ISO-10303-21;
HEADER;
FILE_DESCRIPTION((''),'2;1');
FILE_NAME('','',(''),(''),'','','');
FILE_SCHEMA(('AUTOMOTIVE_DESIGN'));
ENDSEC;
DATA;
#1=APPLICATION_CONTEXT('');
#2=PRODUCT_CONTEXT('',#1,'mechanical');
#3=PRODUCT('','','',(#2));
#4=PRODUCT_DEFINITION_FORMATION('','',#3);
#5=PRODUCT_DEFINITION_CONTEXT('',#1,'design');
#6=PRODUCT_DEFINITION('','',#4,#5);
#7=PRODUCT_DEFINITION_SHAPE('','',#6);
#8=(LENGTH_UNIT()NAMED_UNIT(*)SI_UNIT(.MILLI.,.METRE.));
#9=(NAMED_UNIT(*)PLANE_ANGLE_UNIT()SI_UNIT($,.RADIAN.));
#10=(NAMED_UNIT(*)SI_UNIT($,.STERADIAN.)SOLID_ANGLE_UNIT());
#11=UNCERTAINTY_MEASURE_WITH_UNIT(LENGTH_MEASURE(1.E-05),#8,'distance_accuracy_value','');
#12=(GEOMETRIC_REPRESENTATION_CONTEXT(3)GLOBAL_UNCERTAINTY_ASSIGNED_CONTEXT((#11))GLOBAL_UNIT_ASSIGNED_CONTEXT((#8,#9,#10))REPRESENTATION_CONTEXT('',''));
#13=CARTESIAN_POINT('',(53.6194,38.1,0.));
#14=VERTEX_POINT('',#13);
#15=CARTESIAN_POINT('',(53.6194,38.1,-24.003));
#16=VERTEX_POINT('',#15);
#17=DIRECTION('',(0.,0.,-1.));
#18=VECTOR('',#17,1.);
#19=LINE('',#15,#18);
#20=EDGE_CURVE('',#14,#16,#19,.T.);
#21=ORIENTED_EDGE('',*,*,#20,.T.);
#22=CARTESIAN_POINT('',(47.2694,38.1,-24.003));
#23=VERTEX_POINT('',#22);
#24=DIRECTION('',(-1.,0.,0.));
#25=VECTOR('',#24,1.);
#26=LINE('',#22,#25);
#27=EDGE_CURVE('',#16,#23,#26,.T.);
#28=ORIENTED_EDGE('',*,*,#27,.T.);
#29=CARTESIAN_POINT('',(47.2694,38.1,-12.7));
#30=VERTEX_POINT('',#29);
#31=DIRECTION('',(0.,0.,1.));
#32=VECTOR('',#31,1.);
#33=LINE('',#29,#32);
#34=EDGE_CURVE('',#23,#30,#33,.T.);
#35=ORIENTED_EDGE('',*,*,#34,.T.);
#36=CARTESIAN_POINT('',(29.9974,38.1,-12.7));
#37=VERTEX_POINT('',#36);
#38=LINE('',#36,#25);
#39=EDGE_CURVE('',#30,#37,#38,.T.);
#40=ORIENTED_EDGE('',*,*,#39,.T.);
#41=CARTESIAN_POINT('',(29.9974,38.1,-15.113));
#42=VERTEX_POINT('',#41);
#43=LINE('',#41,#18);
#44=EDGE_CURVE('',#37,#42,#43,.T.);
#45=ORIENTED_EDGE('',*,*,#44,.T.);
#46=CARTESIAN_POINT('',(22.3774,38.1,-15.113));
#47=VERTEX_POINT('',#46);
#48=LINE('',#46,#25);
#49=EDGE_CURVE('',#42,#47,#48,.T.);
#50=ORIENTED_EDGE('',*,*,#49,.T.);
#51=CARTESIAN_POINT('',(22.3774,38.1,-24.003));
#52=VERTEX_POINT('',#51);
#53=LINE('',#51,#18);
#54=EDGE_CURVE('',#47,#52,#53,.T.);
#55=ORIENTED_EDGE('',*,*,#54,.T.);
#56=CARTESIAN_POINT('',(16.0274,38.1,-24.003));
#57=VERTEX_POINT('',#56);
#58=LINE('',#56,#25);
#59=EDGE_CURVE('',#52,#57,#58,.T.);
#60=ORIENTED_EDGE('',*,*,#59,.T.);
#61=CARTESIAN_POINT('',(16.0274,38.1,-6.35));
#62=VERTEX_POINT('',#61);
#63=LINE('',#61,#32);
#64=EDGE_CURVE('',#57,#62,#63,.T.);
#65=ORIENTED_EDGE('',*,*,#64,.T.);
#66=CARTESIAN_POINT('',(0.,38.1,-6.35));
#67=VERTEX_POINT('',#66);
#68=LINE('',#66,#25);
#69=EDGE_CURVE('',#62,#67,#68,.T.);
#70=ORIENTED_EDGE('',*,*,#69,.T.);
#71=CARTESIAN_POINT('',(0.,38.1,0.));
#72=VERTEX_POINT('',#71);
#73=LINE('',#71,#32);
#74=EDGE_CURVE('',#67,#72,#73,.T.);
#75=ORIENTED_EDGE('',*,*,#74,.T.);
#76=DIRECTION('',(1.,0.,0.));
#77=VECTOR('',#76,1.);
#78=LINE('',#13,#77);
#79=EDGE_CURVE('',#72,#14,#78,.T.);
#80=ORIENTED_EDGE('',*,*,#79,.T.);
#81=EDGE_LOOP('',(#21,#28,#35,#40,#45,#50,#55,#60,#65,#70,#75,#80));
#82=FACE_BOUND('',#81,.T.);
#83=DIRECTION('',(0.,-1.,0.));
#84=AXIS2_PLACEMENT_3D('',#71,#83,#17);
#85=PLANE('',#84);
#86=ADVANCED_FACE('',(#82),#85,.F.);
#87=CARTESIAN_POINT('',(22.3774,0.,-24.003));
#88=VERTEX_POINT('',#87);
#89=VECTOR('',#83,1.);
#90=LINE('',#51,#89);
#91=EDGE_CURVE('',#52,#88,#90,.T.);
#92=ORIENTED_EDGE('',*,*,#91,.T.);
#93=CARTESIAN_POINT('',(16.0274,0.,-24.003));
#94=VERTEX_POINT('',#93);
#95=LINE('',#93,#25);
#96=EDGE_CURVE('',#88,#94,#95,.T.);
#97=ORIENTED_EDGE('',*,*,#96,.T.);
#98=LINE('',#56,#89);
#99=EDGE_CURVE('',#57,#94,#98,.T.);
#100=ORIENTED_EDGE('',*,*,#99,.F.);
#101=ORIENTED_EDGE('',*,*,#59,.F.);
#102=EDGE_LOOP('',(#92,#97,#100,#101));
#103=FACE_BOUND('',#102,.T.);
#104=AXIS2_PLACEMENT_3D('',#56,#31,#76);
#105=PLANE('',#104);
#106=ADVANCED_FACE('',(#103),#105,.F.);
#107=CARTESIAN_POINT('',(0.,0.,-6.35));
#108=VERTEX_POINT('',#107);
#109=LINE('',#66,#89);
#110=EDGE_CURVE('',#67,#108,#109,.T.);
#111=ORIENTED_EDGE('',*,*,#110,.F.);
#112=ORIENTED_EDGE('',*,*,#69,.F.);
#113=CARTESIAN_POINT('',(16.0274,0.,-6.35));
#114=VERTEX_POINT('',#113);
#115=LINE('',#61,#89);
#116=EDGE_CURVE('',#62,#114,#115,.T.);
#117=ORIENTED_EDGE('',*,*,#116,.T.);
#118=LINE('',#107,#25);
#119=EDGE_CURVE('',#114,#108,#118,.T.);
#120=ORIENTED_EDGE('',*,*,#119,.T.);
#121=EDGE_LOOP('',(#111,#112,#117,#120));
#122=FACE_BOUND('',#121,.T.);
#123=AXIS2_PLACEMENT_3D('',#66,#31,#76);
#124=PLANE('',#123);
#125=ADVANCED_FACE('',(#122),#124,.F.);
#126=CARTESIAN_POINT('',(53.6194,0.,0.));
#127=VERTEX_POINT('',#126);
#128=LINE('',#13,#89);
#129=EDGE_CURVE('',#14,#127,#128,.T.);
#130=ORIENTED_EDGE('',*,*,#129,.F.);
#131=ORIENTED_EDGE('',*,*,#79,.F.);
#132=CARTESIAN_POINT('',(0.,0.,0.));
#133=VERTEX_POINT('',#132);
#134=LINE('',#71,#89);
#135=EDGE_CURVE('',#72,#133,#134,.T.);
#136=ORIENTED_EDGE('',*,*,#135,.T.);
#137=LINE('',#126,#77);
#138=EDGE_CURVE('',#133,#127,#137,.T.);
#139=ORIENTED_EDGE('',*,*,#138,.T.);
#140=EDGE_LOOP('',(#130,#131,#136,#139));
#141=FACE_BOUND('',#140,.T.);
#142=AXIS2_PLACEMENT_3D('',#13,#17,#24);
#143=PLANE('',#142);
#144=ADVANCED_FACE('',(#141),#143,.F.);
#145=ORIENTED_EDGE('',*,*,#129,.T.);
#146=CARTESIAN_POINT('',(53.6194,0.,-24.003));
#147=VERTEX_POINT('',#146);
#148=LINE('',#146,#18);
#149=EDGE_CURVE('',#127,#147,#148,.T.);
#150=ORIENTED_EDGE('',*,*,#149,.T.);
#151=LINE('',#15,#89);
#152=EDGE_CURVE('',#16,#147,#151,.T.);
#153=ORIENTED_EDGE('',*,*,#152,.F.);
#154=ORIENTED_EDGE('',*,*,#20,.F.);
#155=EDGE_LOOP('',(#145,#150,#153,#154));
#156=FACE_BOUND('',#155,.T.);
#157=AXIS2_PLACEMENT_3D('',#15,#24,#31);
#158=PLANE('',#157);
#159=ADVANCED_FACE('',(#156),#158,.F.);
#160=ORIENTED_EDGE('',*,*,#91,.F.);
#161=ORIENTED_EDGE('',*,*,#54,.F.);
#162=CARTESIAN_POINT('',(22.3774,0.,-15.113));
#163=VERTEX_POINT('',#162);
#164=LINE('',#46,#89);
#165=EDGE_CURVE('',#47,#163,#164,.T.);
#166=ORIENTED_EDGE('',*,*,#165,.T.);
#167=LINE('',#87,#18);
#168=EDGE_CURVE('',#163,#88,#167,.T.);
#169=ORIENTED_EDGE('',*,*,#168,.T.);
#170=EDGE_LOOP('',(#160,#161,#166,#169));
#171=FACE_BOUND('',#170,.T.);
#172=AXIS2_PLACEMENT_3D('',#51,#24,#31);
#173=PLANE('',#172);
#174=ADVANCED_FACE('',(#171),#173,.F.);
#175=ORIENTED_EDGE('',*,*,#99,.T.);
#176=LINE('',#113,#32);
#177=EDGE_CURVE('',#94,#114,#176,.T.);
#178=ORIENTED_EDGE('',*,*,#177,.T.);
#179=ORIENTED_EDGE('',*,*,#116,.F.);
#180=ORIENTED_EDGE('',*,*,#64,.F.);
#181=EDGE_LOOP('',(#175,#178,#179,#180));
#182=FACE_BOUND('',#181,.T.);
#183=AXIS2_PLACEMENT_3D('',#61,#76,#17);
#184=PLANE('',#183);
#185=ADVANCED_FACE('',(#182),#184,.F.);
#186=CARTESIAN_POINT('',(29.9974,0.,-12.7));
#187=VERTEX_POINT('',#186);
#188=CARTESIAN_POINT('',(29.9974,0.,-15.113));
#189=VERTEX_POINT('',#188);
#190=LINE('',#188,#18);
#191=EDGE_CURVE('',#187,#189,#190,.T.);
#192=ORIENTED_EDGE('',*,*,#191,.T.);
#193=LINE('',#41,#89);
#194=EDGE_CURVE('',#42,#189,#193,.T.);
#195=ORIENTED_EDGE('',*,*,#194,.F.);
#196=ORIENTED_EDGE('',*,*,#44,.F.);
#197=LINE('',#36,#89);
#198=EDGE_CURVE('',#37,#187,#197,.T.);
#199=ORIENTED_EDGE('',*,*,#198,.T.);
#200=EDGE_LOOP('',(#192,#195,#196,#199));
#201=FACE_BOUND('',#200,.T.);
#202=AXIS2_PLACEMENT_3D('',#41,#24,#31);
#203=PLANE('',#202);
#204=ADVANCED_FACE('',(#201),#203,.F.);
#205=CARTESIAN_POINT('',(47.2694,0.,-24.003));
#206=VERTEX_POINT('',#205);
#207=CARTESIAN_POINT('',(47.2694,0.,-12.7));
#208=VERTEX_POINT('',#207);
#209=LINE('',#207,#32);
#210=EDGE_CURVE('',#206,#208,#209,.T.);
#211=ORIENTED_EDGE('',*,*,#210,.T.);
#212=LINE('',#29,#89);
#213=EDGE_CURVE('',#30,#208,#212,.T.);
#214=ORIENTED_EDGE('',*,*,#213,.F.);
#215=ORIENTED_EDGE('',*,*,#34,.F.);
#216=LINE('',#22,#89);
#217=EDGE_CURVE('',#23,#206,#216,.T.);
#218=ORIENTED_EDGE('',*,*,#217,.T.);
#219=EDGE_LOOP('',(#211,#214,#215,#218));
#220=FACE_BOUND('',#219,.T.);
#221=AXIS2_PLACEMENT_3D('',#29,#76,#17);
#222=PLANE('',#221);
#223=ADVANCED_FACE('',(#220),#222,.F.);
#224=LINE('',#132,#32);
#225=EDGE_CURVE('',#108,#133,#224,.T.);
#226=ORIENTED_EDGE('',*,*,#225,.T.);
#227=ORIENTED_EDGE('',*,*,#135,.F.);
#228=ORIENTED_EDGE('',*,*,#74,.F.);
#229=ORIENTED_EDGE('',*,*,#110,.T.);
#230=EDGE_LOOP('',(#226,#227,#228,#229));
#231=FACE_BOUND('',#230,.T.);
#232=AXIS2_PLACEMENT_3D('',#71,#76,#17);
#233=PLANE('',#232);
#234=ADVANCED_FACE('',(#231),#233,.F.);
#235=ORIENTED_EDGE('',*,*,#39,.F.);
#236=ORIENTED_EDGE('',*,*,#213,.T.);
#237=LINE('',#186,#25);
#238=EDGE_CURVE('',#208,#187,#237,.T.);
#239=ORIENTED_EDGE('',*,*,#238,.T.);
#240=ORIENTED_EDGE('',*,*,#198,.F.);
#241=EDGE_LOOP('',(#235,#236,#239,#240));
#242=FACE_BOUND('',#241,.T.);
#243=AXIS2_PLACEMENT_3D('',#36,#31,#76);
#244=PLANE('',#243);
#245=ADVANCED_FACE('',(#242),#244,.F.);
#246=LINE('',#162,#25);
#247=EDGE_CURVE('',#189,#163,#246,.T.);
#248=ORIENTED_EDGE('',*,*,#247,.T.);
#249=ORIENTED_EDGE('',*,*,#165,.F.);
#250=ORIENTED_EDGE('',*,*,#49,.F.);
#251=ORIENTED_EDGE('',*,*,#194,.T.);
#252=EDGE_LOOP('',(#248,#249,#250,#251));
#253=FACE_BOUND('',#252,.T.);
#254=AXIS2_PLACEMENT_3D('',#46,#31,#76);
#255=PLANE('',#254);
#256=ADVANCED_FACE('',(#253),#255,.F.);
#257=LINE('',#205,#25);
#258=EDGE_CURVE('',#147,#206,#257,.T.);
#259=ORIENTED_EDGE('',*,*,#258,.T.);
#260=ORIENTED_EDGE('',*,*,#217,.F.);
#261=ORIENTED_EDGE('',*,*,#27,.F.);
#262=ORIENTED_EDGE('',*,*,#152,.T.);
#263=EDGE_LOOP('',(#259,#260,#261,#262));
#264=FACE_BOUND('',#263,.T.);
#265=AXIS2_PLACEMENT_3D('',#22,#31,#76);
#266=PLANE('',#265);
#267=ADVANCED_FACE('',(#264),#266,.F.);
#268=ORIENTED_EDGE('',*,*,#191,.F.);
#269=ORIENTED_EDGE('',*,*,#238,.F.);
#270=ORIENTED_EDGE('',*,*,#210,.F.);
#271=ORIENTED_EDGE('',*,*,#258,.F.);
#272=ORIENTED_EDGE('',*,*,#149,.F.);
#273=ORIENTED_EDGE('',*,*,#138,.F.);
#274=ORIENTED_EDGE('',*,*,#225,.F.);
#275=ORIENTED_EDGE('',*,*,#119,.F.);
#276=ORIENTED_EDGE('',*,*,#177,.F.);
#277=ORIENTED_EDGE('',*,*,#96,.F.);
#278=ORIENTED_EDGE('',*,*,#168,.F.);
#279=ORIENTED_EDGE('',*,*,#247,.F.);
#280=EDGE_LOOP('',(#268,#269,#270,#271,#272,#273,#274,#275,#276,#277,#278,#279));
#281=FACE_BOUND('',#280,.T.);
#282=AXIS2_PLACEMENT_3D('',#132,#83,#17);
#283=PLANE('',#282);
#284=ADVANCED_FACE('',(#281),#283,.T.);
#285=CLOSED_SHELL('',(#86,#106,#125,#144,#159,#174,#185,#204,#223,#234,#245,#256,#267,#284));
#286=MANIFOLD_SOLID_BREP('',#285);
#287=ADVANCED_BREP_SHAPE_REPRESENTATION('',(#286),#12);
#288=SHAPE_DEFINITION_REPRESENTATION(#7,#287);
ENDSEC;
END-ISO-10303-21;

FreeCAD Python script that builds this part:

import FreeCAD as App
import Part
import Sketcher
from FreeCAD import Vector
Q = App.Units.Quantity

doc = App.newDocument("Part")
params = doc.addObject("Spreadsheet::Sheet", "Params")
for row, (alias, value) in enumerate([
    ("sketch1_width", "0.3 in"),
    ("sketch1_width2", "0.25 in"),
    ("sketch1_width3", "0.68 in"),
    ("sketch1_height", "0.35 in"),
    ("sketch1_width4", "0.631 in"),
    ("pad1_length", "1.5 in"),
], start=1):
    params.set(f"A{row}", alias)
    params.set(f"B{row}", "=" + value)
    params.setAlias(f"B{row}", alias)

body = doc.addObject("PartDesign::Body", "Body")

sketch1 = body.newObject("Sketcher::SketchObject", "Sketch")
sketch1.AttachmentSupport = (doc.getObject("XZ_Plane"), [""])
sketch1.MapMode = "FlatFace"
sketch1.addGeometry(Part.LineSegment(Vector(53.6, -24, 0), Vector(47.3, -24, 0)), False)
sketch1.addGeometry(Part.LineSegment(Vector(47.3, -24, 0), Vector(47.3, -12.7, 0)), False)
sketch1.addGeometry(Part.LineSegment(Vector(47.3, -12.7, 0), Vector(30, -12.7, 0)), False)
sketch1.addGeometry(Part.LineSegment(Vector(30, -12.7, 0), Vector(30, -15.1, 0)), False)
sketch1.addGeometry(Part.LineSegment(Vector(30, -15.1, 0), Vector(22.4, -15.1, 0)), False)
sketch1.addGeometry(Part.LineSegment(Vector(22.4, -15.1, 0), Vector(22.4, -24, 0)), False)
sketch1.addGeometry(Part.LineSegment(Vector(22.4, -24, 0), Vector(16, -24, 0)), False)
sketch1.addGeometry(Part.LineSegment(Vector(16, -24, 0), Vector(16, -6.3, 0)), False)
sketch1.addGeometry(Part.LineSegment(Vector(16, -6.3, 0), Vector(0, -6.3, 0)), False)
sketch1.addGeometry(Part.LineSegment(Vector(0, -6.3, 0), Vector(0, 0, 0)), False)
sketch1.addGeometry(Part.LineSegment(Vector(0, 0, 0), Vector(53.6, 0, 0)), False)
sketch1.addGeometry(Part.LineSegment(Vector(53.6, 0, 0), Vector(53.6, -24, 0)), False)
sketch1.addConstraint(Sketcher.Constraint("Coincident", 0, 2, 1, 1))
sketch1.addConstraint(Sketcher.Constraint("Coincident", 1, 2, 2, 1))
sketch1.addConstraint(Sketcher.Constraint("Coincident", 2, 2, 3, 1))
sketch1.addConstraint(Sketcher.Constraint("Coincident", 3, 2, 4, 1))
sketch1.addConstraint(Sketcher.Constraint("Coincident", 4, 2, 5, 1))
sketch1.addConstraint(Sketcher.Constraint("Coincident", 5, 2, 6, 1))
sketch1.addConstraint(Sketcher.Constraint("Coincident", 6, 2, 7, 1))
sketch1.addConstraint(Sketcher.Constraint("Coincident", 7, 2, 8, 1))
sketch1.addConstraint(Sketcher.Constraint("Coincident", 8, 2, 9, 1))
sketch1.addConstraint(Sketcher.Constraint("Coincident", 9, 2, 10, 1))
sketch1.addConstraint(Sketcher.Constraint("Coincident", 10, 2, 11, 1))
sketch1.addConstraint(Sketcher.Constraint("Coincident", 11, 2, 0, 1))
sketch1.addConstraint(Sketcher.Constraint("Horizontal", 0))
sketch1.addConstraint(Sketcher.Constraint("Vertical", 1))
sketch1.addConstraint(Sketcher.Constraint("Horizontal", 2))
sketch1.addConstraint(Sketcher.Constraint("Vertical", 3))
sketch1.addConstraint(Sketcher.Constraint("Horizontal", 4))
sketch1.addConstraint(Sketcher.Constraint("Vertical", 5))
sketch1.addConstraint(Sketcher.Constraint("Horizontal", 6))
sketch1.addConstraint(Sketcher.Constraint("Vertical", 7))
sketch1.addConstraint(Sketcher.Constraint("Horizontal", 8))
sketch1.addConstraint(Sketcher.Constraint("Vertical", 9))
sketch1.addConstraint(Sketcher.Constraint("Horizontal", 10))
sketch1.addConstraint(Sketcher.Constraint("Vertical", 11))
sketch1.addConstraint(Sketcher.Constraint("Coincident", 9, 2, -1, 1))
sketch1.addConstraint(Sketcher.Constraint("Horizontal", 0, 2, 5, 2))
sketch1.addConstraint(Sketcher.Constraint("Equal", 0, 6))
sketch1.addConstraint(Sketcher.Constraint("Equal", 6, 9))
sketch1.addConstraint(Sketcher.Constraint("DistanceX", 4, 2, 4, 1, Q("0.3 in")))
sketch1.addConstraint(Sketcher.Constraint("DistanceX", 0, 2, 0, 1, Q("0.25 in")))
sketch1.addConstraint(Sketcher.Constraint("DistanceX", 2, 2, 2, 1, Q("0.68 in")))
sketch1.addConstraint(Sketcher.Constraint("DistanceY", 5, 2, 5, 1, Q("0.35 in")))
sketch1.addConstraint(Sketcher.Constraint("DistanceY", 1, 2, -1, 1, Q("0.5 in")))
sketch1.addConstraint(Sketcher.Constraint("DistanceX", 8, 2, 8, 1, Q("0.631 in")))
sketch1.addConstraint(Sketcher.Constraint("DistanceY", 1, 1, 1, 2, Q("0.445 in")))
sketch1.setExpression("Constraints[28]", "Params.sketch1_width")
sketch1.setExpression("Constraints[29]", "Params.sketch1_width2")
sketch1.setExpression("Constraints[30]", "Params.sketch1_width3")
sketch1.setExpression("Constraints[31]", "Params.sketch1_height")
sketch1.setExpression("Constraints[33]", "Params.sketch1_width4")
pad1 = body.newObject("PartDesign::Pad", "Pad")
pad1.Profile = sketch1
pad1.setExpression("Length", "Params.pad1_length")
pad1.Reversed = True

doc.recompute()
